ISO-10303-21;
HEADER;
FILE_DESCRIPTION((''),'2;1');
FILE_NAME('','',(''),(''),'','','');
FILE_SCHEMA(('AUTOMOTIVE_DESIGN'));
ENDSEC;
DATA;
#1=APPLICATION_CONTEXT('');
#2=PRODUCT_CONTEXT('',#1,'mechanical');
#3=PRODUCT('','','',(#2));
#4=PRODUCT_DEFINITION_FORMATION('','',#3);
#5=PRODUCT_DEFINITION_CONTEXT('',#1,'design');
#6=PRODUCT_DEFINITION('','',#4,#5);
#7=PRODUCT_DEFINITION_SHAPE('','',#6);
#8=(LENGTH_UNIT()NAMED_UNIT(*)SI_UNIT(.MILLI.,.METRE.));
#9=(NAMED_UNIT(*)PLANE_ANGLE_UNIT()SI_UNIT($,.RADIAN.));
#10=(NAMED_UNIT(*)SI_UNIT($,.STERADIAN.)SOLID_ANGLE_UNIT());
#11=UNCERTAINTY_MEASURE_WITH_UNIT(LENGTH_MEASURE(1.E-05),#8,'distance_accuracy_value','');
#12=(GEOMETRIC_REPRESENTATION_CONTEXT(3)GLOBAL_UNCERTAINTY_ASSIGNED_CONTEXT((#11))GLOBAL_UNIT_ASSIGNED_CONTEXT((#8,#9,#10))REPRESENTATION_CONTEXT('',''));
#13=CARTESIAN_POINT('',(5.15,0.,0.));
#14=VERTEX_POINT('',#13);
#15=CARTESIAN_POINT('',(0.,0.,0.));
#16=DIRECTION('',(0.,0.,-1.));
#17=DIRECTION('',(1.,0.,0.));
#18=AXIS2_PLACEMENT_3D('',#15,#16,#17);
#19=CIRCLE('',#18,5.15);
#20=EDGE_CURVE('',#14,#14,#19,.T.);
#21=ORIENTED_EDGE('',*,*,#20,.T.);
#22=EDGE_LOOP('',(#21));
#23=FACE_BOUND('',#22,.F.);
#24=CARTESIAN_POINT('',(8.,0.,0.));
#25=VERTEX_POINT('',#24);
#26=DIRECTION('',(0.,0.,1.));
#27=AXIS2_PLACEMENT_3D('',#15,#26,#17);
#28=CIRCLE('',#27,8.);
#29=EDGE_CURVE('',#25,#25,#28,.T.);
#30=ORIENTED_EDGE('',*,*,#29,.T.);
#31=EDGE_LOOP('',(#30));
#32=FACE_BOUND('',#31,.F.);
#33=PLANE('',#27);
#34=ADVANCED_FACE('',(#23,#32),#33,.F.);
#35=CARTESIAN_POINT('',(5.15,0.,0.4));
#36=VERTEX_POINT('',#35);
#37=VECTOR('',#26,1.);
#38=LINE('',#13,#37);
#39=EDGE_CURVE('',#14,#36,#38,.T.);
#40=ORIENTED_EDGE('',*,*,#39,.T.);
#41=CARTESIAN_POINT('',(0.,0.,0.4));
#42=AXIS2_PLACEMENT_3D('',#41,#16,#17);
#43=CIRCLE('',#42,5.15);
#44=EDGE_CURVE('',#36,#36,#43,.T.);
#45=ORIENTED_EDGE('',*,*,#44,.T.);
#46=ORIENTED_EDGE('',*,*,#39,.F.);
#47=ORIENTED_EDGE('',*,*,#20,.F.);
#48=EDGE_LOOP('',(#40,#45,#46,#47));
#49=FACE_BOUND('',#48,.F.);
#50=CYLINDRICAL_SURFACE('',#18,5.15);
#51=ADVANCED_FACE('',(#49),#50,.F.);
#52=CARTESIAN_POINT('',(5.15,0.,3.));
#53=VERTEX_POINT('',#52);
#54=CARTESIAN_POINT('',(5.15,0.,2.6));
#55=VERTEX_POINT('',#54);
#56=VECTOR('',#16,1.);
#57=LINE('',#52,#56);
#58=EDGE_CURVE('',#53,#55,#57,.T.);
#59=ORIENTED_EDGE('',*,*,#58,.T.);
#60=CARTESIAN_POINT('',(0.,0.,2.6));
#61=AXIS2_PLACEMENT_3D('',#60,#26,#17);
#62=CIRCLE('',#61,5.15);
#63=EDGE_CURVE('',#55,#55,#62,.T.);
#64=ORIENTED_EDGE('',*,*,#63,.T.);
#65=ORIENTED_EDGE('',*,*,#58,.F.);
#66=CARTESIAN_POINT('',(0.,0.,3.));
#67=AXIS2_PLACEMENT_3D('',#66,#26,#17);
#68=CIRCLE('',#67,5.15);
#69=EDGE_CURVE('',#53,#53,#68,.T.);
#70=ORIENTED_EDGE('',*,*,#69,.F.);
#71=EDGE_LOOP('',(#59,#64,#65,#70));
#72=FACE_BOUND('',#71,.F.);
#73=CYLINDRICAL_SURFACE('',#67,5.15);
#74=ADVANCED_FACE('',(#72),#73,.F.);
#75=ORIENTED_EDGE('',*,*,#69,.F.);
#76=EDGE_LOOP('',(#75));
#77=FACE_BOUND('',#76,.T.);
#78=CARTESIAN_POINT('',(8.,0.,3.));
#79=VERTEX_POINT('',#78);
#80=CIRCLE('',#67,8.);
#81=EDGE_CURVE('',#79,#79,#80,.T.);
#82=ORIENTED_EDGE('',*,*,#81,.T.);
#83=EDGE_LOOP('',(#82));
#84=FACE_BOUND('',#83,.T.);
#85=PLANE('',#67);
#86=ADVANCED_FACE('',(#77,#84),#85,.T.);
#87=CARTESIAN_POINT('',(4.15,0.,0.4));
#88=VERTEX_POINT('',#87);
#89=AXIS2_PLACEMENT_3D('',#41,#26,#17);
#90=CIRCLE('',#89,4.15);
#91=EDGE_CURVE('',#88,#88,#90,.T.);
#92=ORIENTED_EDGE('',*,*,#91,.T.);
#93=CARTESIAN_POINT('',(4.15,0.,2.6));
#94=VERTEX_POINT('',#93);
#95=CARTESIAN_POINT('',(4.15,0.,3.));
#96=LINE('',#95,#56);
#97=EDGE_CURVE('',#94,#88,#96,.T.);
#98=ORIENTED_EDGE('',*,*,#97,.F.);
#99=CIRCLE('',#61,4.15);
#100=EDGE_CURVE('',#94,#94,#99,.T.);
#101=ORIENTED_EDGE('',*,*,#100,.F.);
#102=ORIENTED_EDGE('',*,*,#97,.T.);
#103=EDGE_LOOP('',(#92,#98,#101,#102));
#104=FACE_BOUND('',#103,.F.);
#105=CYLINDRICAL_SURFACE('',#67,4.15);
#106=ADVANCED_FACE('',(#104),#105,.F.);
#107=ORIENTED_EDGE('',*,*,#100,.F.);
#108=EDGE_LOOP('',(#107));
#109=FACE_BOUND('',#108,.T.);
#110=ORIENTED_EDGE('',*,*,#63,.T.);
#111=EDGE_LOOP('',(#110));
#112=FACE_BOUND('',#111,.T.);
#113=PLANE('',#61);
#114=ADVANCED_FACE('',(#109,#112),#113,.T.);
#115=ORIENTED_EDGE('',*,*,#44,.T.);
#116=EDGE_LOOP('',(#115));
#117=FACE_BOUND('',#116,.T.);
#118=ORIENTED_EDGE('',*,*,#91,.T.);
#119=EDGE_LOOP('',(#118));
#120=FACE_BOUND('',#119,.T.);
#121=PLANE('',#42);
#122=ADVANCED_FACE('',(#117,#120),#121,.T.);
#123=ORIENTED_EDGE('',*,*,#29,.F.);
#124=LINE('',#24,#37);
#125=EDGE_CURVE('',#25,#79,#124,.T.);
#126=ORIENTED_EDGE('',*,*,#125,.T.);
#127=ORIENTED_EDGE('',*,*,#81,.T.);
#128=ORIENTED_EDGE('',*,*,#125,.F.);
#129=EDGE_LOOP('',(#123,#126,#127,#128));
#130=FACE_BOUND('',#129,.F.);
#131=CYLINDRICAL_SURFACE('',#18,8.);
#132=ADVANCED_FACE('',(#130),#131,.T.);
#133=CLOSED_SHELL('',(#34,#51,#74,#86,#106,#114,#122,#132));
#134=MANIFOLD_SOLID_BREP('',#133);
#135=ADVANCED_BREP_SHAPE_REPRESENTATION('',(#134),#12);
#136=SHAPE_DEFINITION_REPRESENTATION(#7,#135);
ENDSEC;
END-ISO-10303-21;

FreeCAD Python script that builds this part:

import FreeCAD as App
import Part
import Sketcher
from FreeCAD import Vector
Q = App.Units.Quantity

doc = App.newDocument("Part")
body = doc.addObject("PartDesign::Body", "Body")

sketch1 = body.newObject("Sketcher::SketchObject", "Sketch")
sketch1.AttachmentSupport = (doc.getObject("XY_Plane"), [""])
sketch1.MapMode = "FlatFace"
sketch1.addGeometry(Part.Circle(Vector(0, 0, 0), Vector(0, 0, 1), 8), False)
sketch1.addConstraint([
    Sketcher.Constraint("Coincident", 0, 3, -1, 1),
    Sketcher.Constraint("Diameter", 0, Q("16 mm")),
])
pad1 = body.newObject("PartDesign::Pad", "Pad")
pad1.Profile = sketch1
pad1.Length = 3

sketch2 = body.newObject("Sketcher::SketchObject", "Sketch001")
sketch2.AttachmentSupport = (doc.getObject("XY_Plane"), [""])
sketch2.MapMode = "FlatFace"
sketch2.AttachmentOffset = App.Placement(Vector(0, 0, 3), App.Rotation())
sketch2.addGeometry(Part.Circle(Vector(0, 0, 0), Vector(0, 0, 1), 4.2), False)
sketch2.addConstraint([
    Sketcher.Constraint("Coincident", 0, 3, -1, 1),
    Sketcher.Constraint("Diameter", 0, Q("8.3 mm")),
])
pocket1 = body.newObject("PartDesign::Pocket", "Pocket")
pocket1.Profile = sketch2
pocket1.Length = 25

sketch3 = body.newObject("Sketcher::SketchObject", "Sketch002")
sketch3.AttachmentSupport = (doc.getObject("XY_Plane"), [""])
sketch3.MapMode = "FlatFace"
sketch3.addGeometry(Part.Circle(Vector(0, 0, 0), Vector(0, 0, 1), 5), False)
sketch3.addConstraint([
    Sketcher.Constraint("Coincident", 0, 3, -1, 1),
    Sketcher.Constraint("Diameter", 0, Q("10.3 mm")),
])
pocket2 = body.newObject("PartDesign::Pocket", "Pocket001")
pocket2.Profile = sketch3
pocket2.Length = 0.4
pocket2.Reversed = True

sketch4 = body.newObject("Sketcher::SketchObject", "Sketch003")
sketch4.AttachmentSupport = (doc.getObject("XY_Plane"), [""])
sketch4.MapMode = "FlatFace"
sketch4.AttachmentOffset = App.Placement(Vector(0, 0, 3), App.Rotation())
sketch4.addGeometry(Part.Circle(Vector(0, 0, 0), Vector(0, 0, 1), 5), False)
sketch4.addConstraint([
    Sketcher.Constraint("Coincident", 0, 3, -1, 1),
    Sketcher.Constraint("Diameter", 0, Q("10.3 mm")),
])
pocket3 = body.newObject("PartDesign::Pocket", "Pocket002")
pocket3.Profile = sketch4
pocket3.Length = 0.4

doc.recompute()
